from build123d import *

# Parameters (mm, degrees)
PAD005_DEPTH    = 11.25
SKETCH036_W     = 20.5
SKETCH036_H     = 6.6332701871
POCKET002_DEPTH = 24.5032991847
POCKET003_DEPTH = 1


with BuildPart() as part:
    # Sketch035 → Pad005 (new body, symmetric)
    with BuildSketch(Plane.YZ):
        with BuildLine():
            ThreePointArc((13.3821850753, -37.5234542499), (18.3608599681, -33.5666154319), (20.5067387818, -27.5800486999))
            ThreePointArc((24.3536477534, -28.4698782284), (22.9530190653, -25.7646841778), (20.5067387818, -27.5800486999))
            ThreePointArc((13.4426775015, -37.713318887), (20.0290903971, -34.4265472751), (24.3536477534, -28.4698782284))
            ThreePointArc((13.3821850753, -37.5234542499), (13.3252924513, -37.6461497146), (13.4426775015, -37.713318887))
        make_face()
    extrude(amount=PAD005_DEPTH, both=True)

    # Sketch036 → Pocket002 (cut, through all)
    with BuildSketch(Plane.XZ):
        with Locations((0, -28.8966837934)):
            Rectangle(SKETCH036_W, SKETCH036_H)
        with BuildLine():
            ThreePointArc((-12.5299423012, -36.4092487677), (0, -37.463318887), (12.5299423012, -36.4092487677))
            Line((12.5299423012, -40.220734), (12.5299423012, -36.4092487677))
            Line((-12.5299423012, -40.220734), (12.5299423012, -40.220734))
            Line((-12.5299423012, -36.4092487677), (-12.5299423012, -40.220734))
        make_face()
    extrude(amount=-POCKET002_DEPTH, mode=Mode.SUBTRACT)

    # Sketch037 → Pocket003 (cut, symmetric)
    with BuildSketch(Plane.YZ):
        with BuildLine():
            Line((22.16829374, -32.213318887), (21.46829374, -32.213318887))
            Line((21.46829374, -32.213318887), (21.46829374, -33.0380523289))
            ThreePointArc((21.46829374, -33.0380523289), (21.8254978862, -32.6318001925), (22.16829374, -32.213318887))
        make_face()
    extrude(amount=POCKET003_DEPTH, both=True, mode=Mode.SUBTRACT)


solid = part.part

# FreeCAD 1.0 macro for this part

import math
import FreeCAD as App
import Part
import Sketcher
from FreeCAD import Vector

doc = App.newDocument("Part")
body = doc.addObject("PartDesign::Body", "Body")

sketch1 = body.newObject("Sketcher::SketchObject", "Sketch")
sketch1.AttachmentSupport = (doc.getObject("YZ_Plane"), [""])
sketch1.MapMode = "FlatFace"
sketch1.addGeometry(Part.ArcOfCircle(Part.Circle(Vector(8.93, -26.81, 0), Vector(0, 0, 1), 11.61), math.radians(-67), math.radians(-4)), False)
sketch1.addGeometry(Part.ArcOfCircle(Part.Circle(Vector(13.42, -37.62, 0), Vector(0, 0, 1), 0.1), math.radians(113), math.radians(283)), False)
sketch1.addGeometry(Part.ArcOfCircle(Part.Circle(Vector(10.02, -22.61, 0), Vector(0, 0, 1), 15.48), math.radians(-77), math.radians(-22)), False)
sketch1.addGeometry(Part.ArcOfCircle(Part.Circle(Vector(22.5, -27.71, 0), Vector(0, 0, 1), 2), math.radians(-22), math.radians(176)), False)
sketch1.addConstraint(Sketcher.Constraint("Tangent", 0, 1, 1, 1))
sketch1.addConstraint(Sketcher.Constraint("Tangent", 1, 2, 2, 1))
sketch1.addConstraint(Sketcher.Constraint("Tangent", 2, 2, 3, 1))
sketch1.addConstraint(Sketcher.Constraint("Tangent", 3, 2, 0, 2))
sketch1.addConstraint(Sketcher.Constraint("Radius", 3, 2.0))
sketch1.addConstraint(Sketcher.Constraint("Radius", 1, 0.1))
sketch1.addConstraint(Sketcher.Constraint("Radius", 0, 11.605434))
sketch1.addConstraint(Sketcher.Constraint("Radius", 2, 15.484634))
sketch1.addConstraint(Sketcher.Constraint("DistanceX", -1, 1, 3, 3, 22.502299))
sketch1.addConstraint(Sketcher.Constraint("DistanceX", -1, 1, 2, 3, 10.01992))
sketch1.addConstraint(Sketcher.Constraint("DistanceY", 2, 3, -1, 1, 22.611709))
sketch1.addConstraint(Sketcher.Constraint("DistanceY", 1, 2, -1, 1, 37.713319))
pad1 = body.newObject("PartDesign::Pad", "Pad")
pad1.Profile = sketch1
pad1.Length = 22.5
pad1.Midplane = True

sketch2 = body.newObject("Sketcher::SketchObject", "Sketch001")
sketch2.AttachmentSupport = (doc.getObject("XZ_Plane"), [""])
sketch2.MapMode = "FlatFace"
sketch2.addGeometry(Part.LineSegment(Vector(-10.2, -25.6, 0), Vector(-10.2, -32.2, 0)), False)
sketch2.addGeometry(Part.LineSegment(Vector(-10.2, -32.2, 0), Vector(10.2, -32.2, 0)), False)
sketch2.addGeometry(Part.LineSegment(Vector(10.2, -32.2, 0), Vector(10.2, -25.6, 0)), False)
sketch2.addGeometry(Part.LineSegment(Vector(10.2, -25.6, 0), Vector(-10.2, -25.6, 0)), False)
sketch2.addGeometry(Part.ArcOfCircle(Part.Circle(Vector(0, 37.5, 0), Vector(0, 0, 1), 75), math.radians(-99.62), math.radians(-80.38)), False)
sketch2.addGeometry(Part.LineSegment(Vector(-12.5, -36.4, 0), Vector(-12.5, -40.2, 0)), False)
sketch2.addGeometry(Part.LineSegment(Vector(-12.5, -40.2, 0), Vector(12.5, -40.2, 0)), False)
sketch2.addGeometry(Part.LineSegment(Vector(12.5, -40.2, 0), Vector(12.5, -36.4, 0)), False)
sketch2.addConstraint(Sketcher.Constraint("Coincident", 0, 2, 1, 1))
sketch2.addConstraint(Sketcher.Constraint("Coincident", 1, 2, 2, 1))
sketch2.addConstraint(Sketcher.Constraint("Coincident", 2, 2, 3, 1))
sketch2.addConstraint(Sketcher.Constraint("Coincident", 3, 2, 0, 1))
sketch2.addConstraint(Sketcher.Constraint("Coincident", 4, 1, 5, 1))
sketch2.addConstraint(Sketcher.Constraint("Coincident", 5, 2, 6, 1))
sketch2.addConstraint(Sketcher.Constraint("Coincident", 6, 2, 7, 1))
sketch2.addConstraint(Sketcher.Constraint("Coincident", 7, 2, 4, 2))
sketch2.addConstraint(Sketcher.Constraint("Vertical", 0))
sketch2.addConstraint(Sketcher.Constraint("Horizontal", 1))
sketch2.addConstraint(Sketcher.Constraint("Vertical", 2))
sketch2.addConstraint(Sketcher.Constraint("Horizontal", 3))
sketch2.addConstraint(Sketcher.Constraint("Vertical", 5))
sketch2.addConstraint(Sketcher.Constraint("Horizontal", 6))
sketch2.addConstraint(Sketcher.Constraint("Vertical", 7))
sketch2.addConstraint(Sketcher.Constraint("Symmetric", 4, 1, 7, 2, -2))
sketch2.addConstraint(Sketcher.Constraint("Radius", 4, 75.0))
sketch2.addConstraint(Sketcher.Constraint("DistanceX", 1, 1, 1, 2, 20.5))
sketch2.addConstraint(Sketcher.Constraint("DistanceX", 0, 2, -1, 1, 10.25))
sketch2.addConstraint(Sketcher.Constraint("DistanceY", 0, 2, 4, 3, 69.75))
sketch2.addConstraint(Sketcher.Constraint("DistanceY", 0, 2, 0, 1, 6.63327))
sketch2.addConstraint(Sketcher.Constraint("DistanceY", 4, 1, 3, 2, 10.8292))
sketch2.addConstraint(Sketcher.Constraint("DistanceY", 5, 2, 5, 1, 3.811485))
sketch2.addConstraint(Sketcher.Constraint("DistanceY", -1, 1, 4, 3, 37.536681))
pocket1 = body.newObject("PartDesign::Pocket", "Pocket")
pocket1.Profile = sketch2
pocket1.Type = "ThroughAll"

sketch3 = body.newObject("Sketcher::SketchObject", "Sketch002")
sketch3.AttachmentSupport = (doc.getObject("YZ_Plane"), [""])
sketch3.MapMode = "FlatFace"
sketch3.addGeometry(Part.LineSegment(Vector(22.2, -32.2, 0), Vector(21.5, -32.2, 0)), False)
sketch3.addGeometry(Part.LineSegment(Vector(21.5, -32.2, 0), Vector(21.5, -33, 0)), False)
sketch3.addGeometry(Part.ArcOfCircle(Part.Circle(Vector(10, -22.6, 0), Vector(0, 0, 1), 15.5), math.radians(-42.32), math.radians(-38.32)), False)
sketch3.addConstraint(Sketcher.Constraint("Coincident", 0, 2, 1, 1))
sketch3.addConstraint(Sketcher.Constraint("Coincident", 1, 2, 2, 1))
sketch3.addConstraint(Sketcher.Constraint("Coincident", 2, 2, 0, 1))
sketch3.addConstraint(Sketcher.Constraint("Horizontal", 0))
sketch3.addConstraint(Sketcher.Constraint("Vertical", 1))
sketch3.addConstraint(Sketcher.Constraint("DistanceX", 0, 2, 0, 1, 0.7))
sketch3.addConstraint(Sketcher.Constraint("Radius", 2, 15.484634))
sketch3.addConstraint(Sketcher.Constraint("DistanceY", 1, 2, 1, 1, 0.824733))
sketch3.addConstraint(Sketcher.Constraint("DistanceX", -1, 1, 2, 3, 10.01992))
sketch3.addConstraint(Sketcher.Constraint("DistanceY", 2, 3, -1, 1, 22.611709))
pocket2 = body.newObject("PartDesign::Pocket", "Pocket001")
pocket2.Profile = sketch3
pocket2.Length = 2
pocket2.Midplane = True

doc.recompute()
